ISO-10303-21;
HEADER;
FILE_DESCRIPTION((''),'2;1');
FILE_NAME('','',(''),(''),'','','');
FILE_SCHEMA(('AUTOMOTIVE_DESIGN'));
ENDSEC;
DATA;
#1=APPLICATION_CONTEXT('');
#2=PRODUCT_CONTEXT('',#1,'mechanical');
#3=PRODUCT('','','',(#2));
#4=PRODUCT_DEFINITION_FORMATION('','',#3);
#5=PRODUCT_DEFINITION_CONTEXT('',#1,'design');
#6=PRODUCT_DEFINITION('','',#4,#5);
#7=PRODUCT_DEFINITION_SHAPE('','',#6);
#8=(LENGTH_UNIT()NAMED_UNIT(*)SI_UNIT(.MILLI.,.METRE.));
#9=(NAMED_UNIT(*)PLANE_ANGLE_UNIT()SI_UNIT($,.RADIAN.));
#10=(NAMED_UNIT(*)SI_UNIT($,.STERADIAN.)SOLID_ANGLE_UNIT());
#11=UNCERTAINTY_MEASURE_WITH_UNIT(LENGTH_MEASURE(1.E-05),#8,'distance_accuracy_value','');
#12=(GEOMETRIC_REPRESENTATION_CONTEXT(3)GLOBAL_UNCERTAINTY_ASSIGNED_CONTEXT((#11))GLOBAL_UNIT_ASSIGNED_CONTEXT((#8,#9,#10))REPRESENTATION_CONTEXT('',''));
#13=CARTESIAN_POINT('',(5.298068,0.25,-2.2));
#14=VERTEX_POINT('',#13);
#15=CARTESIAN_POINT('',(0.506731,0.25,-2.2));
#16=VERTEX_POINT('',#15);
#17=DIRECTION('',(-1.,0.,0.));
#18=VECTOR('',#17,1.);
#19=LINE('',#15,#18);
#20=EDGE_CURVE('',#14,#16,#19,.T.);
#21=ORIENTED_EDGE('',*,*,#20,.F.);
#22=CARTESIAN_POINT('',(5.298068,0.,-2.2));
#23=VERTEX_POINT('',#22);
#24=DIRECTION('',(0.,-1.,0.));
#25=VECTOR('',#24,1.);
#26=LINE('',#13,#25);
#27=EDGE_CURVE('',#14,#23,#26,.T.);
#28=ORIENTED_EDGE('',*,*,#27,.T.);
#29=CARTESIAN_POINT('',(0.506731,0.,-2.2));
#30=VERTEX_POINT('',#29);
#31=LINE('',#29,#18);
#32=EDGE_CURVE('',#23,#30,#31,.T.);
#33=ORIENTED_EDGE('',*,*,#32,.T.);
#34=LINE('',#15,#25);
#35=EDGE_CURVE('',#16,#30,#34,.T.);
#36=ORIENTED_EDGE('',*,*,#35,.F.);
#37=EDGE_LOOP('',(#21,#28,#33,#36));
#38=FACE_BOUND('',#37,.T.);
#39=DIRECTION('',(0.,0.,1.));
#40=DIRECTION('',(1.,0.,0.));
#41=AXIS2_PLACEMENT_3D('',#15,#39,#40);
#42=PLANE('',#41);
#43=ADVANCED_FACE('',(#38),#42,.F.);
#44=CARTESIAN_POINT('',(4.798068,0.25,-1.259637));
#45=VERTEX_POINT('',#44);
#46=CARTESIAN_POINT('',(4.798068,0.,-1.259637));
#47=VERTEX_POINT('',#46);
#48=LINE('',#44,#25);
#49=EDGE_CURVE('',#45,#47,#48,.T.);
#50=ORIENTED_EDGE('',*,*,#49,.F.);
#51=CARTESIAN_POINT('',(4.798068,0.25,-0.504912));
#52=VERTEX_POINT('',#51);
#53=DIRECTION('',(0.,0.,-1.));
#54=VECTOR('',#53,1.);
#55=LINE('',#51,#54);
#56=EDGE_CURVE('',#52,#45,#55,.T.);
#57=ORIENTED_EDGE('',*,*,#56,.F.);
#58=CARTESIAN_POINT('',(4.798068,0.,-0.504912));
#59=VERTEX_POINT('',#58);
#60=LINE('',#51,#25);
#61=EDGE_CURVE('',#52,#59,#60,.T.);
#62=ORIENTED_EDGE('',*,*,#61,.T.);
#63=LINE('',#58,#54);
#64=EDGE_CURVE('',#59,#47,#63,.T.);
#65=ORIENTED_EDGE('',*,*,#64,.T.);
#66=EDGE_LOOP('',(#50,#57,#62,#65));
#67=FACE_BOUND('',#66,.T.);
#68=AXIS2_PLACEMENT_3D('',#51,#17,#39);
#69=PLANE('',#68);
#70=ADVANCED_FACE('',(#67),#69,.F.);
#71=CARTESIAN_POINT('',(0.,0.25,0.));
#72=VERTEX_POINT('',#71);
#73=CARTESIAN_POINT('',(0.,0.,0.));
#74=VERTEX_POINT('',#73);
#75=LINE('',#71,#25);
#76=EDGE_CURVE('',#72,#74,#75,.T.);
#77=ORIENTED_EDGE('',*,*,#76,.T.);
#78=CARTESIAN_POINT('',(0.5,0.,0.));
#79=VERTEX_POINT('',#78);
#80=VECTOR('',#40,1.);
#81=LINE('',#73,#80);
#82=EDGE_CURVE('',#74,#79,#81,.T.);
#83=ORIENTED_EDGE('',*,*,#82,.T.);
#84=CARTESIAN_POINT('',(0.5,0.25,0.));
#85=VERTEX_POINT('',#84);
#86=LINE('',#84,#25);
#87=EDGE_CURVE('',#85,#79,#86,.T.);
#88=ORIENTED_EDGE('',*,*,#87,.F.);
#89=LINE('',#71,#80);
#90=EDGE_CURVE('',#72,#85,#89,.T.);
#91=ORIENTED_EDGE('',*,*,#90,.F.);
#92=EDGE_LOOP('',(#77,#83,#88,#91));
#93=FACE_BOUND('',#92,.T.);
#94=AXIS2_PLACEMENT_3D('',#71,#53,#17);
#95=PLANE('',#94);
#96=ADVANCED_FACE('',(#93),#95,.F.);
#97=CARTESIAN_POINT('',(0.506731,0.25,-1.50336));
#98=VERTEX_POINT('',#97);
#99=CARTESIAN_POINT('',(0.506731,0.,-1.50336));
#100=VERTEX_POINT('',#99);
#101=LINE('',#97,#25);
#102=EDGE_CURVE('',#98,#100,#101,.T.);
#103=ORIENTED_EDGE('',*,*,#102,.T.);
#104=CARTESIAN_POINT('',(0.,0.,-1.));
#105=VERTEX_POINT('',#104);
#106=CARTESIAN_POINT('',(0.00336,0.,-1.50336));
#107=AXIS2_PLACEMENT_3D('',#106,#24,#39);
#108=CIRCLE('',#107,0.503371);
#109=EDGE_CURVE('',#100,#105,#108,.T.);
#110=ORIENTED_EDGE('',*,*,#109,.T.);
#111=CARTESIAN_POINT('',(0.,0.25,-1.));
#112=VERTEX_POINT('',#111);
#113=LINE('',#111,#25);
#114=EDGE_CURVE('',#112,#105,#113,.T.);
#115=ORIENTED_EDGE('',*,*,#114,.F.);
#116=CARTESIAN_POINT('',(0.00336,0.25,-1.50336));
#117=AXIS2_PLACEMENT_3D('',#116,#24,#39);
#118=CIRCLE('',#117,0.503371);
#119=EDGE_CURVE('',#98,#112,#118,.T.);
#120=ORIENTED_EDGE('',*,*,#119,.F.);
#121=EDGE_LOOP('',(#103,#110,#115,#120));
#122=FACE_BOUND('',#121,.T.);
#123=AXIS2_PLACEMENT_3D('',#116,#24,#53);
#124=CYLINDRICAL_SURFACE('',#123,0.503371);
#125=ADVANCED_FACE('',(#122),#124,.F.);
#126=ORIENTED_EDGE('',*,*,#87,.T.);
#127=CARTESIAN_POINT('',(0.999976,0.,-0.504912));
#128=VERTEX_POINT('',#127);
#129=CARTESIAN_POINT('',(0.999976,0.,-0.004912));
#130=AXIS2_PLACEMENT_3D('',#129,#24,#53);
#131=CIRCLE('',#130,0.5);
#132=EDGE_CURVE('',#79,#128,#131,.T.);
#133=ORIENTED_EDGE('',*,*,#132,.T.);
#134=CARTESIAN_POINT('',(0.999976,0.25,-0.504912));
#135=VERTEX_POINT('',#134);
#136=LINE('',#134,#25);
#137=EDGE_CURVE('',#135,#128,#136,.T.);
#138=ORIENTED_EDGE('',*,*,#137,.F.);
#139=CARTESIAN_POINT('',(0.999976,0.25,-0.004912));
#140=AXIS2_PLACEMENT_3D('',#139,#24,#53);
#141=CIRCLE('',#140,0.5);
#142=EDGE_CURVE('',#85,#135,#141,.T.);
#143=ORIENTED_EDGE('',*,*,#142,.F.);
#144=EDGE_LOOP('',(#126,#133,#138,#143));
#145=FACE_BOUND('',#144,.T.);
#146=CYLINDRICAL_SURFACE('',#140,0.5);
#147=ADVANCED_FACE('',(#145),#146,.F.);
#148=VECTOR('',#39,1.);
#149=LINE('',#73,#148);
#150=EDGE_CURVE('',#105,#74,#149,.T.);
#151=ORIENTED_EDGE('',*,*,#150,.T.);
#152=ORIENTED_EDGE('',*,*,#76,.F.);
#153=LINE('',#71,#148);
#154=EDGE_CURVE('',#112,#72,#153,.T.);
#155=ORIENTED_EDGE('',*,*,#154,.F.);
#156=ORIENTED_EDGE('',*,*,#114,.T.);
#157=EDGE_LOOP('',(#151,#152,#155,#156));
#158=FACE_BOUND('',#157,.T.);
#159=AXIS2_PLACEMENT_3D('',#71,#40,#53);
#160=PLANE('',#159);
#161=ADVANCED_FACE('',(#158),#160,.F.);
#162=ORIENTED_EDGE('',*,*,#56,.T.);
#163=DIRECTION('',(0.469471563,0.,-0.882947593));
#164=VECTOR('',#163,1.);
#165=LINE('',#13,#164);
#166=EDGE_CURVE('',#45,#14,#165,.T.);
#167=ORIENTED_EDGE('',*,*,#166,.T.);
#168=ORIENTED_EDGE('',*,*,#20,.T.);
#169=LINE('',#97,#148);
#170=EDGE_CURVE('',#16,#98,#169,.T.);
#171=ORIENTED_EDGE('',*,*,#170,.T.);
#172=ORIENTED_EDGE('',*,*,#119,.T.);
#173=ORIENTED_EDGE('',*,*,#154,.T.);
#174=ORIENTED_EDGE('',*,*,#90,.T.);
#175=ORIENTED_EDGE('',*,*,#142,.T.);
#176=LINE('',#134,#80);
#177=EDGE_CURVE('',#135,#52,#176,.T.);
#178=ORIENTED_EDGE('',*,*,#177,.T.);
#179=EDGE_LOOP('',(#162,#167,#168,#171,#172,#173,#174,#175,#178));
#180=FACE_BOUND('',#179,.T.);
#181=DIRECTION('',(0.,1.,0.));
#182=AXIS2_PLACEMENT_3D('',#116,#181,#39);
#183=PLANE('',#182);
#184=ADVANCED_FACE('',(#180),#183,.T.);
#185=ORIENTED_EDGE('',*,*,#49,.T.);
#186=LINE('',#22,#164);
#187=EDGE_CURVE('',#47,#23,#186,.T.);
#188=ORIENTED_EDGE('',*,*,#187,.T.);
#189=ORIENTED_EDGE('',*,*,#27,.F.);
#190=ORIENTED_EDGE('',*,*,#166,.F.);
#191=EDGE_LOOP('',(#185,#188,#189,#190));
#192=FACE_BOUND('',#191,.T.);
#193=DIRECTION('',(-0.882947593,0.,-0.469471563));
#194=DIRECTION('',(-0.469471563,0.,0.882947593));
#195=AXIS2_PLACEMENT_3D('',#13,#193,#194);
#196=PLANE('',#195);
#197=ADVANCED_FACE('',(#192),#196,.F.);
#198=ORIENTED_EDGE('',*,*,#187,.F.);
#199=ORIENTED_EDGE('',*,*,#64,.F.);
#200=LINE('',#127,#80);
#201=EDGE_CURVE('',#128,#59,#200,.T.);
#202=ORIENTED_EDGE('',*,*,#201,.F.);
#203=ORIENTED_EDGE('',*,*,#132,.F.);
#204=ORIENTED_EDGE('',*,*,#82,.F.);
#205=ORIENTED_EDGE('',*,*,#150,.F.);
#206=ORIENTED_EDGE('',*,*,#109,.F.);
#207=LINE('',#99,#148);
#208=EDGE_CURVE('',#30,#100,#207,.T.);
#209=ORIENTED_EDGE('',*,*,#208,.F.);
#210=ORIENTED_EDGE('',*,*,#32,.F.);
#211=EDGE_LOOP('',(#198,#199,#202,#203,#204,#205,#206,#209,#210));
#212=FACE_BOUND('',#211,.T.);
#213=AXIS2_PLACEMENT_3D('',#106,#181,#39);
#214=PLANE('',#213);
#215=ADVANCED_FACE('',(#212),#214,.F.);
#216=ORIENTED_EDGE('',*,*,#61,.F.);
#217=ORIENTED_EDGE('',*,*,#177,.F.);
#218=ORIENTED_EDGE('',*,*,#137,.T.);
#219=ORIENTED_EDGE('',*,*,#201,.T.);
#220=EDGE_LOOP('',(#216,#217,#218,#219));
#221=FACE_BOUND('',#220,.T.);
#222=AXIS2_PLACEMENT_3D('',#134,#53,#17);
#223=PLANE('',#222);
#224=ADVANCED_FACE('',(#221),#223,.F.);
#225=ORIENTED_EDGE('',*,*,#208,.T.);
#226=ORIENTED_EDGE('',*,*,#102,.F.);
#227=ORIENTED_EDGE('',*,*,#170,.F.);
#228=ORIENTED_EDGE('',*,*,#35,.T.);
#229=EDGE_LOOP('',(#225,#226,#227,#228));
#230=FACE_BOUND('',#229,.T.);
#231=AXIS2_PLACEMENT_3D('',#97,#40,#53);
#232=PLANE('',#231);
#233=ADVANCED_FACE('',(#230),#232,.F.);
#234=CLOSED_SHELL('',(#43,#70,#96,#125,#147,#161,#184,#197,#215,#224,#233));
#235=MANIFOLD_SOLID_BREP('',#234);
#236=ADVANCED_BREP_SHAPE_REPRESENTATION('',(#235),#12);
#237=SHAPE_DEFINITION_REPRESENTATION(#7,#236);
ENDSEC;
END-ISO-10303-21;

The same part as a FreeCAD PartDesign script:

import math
import FreeCAD as App
import Part
import Sketcher
from FreeCAD import Vector
Q = App.Units.Quantity

doc = App.newDocument("Part")
body = doc.addObject("PartDesign::Body", "Body")

# Sketch on XZ plane
sketch1 = body.newObject("Sketcher::SketchObject", "Sketch")
sketch1.AttachmentSupport = (doc.getObject("XZ_Plane"), [""])
sketch1.MapMode = "FlatFace"
sketch1.addGeometry(Part.LineSegment(Vector(0, 0, 0), Vector(0.5, 0, 0)), False)
sketch1.addGeometry(Part.ArcOfCircle(Part.Circle(Vector(1, 0, 0), Vector(0, 0, 1), 0.5), math.radians(179), math.radians(270)), False)
sketch1.addGeometry(Part.LineSegment(Vector(1, -0.5, 0), Vector(4.8, -0.5, 0)), False)
sketch1.addGeometry(Part.LineSegment(Vector(4.8, -0.5, 0), Vector(4.8, -1.3, 0)), False)
sketch1.addGeometry(Part.LineSegment(Vector(4.8, -1.3, 0), Vector(5.3, -2.2, 0)), False)
sketch1.addGeometry(Part.LineSegment(Vector(5.3, -2.2, 0), Vector(0.5, -2.2, 0)), False)
sketch1.addGeometry(Part.LineSegment(Vector(0.5, -2.2, 0), Vector(0.5, -1.5, 0)), False)
sketch1.addGeometry(Part.ArcOfCircle(Part.Circle(Vector(0, -1.5, 0), Vector(0, 0, 1), 0.5), math.radians(0), math.radians(90)), False)
sketch1.addGeometry(Part.LineSegment(Vector(0, -1, 0), Vector(0, 0, 0)), False)
sketch1.addConstraint(Sketcher.Constraint("Coincident", 0, 2, 1, 1))
sketch1.addConstraint(Sketcher.Constraint("Tangent", 1, 2, 2, 1))
sketch1.addConstraint(Sketcher.Constraint("Coincident", 2, 2, 3, 1))
sketch1.addConstraint(Sketcher.Constraint("Coincident", 3, 2, 4, 1))
sketch1.addConstraint(Sketcher.Constraint("Coincident", 4, 2, 5, 1))
sketch1.addConstraint(Sketcher.Constraint("Coincident", 5, 2, 6, 1))
sketch1.addConstraint(Sketcher.Constraint("Tangent", 6, 2, 7, 1))
sketch1.addConstraint(Sketcher.Constraint("Coincident", 7, 2, 8, 1))
sketch1.addConstraint(Sketcher.Constraint("Coincident", 8, 2, 0, 1))
sketch1.addConstraint(Sketcher.Constraint("Horizontal", 0))
sketch1.addConstraint(Sketcher.Constraint("Horizontal", 2))
sketch1.addConstraint(Sketcher.Constraint("Vertical", 3))
sketch1.addConstraint(Sketcher.Constraint("Horizontal", 5))
sketch1.addConstraint(Sketcher.Constraint("Vertical", 6))
sketch1.addConstraint(Sketcher.Constraint("Vertical", 8))
sketch1.addConstraint(Sketcher.Constraint("Coincident", 8, 2, -1, 1))
sketch1.addConstraint(Sketcher.Constraint("Radius", 1, Q("0.5 mm")))
sketch1.addConstraint(Sketcher.Constraint("DistanceY", 8, 1, 8, 2, Q("1 mm")))
sketch1.addConstraint(Sketcher.Constraint("Angle", 4, Q("-62 deg")))
sketch1.addConstraint(Sketcher.Constraint("DistanceX", 0, 1, 0, 2, Q("0.5 mm")))
sketch1.addConstraint(Sketcher.Constraint("DistanceY", 4, 2, -1, 1, Q("2.2 mm")))
sketch1.addConstraint(Sketcher.Constraint("DistanceX", 3, 2, 4, 2, Q("0.5 mm")))
sketch1.addConstraint(Sketcher.Constraint("Radius", 7, Q("0.503371 mm")))
sketch1.addConstraint(Sketcher.Constraint("DistanceX", 2, 1, 2, 2, Q("3.798092 mm")))
sketch1.addConstraint(Sketcher.Constraint("DistanceX", 5, 2, 5, 1, Q("4.791337 mm")))
sketch1.addConstraint(Sketcher.Constraint("DistanceY", 3, 2, 3, 1, Q("0.754725 mm")))
pad1 = body.newObject("PartDesign::Pad", "Pad")
pad1.Profile = sketch1
pad1.Length = 0.25
pad1.Reversed = True

doc.recompute()
